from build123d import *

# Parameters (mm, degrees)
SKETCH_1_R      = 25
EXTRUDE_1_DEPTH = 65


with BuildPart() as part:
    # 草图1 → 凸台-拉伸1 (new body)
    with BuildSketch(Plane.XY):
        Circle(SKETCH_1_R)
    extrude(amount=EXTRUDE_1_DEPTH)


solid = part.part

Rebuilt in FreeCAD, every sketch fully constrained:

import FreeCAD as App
import Part
import Sketcher
from FreeCAD import Vector
Q = App.Units.Quantity

doc = App.newDocument("Part")
body = doc.addObject("PartDesign::Body", "Body")

# Sketch on XY plane
sketch1 = body.newObject("Sketcher::SketchObject", "Sketch")
sketch1.AttachmentSupport = (doc.getObject("XY_Plane"), [""])
sketch1.MapMode = "FlatFace"
sketch1.addGeometry(Part.Circle(Vector(0, 0, 0), Vector(0, 0, 1), 25), False)
sketch1.addConstraint([
    Sketcher.Constraint("Coincident", 0, 3, -1, 1),
    Sketcher.Constraint("Diameter", 0, Q("50 mm")),
])
pad1 = body.newObject("PartDesign::Pad", "Pad")
pad1.Profile = sketch1
pad1.Length = 65

doc.recompute()
